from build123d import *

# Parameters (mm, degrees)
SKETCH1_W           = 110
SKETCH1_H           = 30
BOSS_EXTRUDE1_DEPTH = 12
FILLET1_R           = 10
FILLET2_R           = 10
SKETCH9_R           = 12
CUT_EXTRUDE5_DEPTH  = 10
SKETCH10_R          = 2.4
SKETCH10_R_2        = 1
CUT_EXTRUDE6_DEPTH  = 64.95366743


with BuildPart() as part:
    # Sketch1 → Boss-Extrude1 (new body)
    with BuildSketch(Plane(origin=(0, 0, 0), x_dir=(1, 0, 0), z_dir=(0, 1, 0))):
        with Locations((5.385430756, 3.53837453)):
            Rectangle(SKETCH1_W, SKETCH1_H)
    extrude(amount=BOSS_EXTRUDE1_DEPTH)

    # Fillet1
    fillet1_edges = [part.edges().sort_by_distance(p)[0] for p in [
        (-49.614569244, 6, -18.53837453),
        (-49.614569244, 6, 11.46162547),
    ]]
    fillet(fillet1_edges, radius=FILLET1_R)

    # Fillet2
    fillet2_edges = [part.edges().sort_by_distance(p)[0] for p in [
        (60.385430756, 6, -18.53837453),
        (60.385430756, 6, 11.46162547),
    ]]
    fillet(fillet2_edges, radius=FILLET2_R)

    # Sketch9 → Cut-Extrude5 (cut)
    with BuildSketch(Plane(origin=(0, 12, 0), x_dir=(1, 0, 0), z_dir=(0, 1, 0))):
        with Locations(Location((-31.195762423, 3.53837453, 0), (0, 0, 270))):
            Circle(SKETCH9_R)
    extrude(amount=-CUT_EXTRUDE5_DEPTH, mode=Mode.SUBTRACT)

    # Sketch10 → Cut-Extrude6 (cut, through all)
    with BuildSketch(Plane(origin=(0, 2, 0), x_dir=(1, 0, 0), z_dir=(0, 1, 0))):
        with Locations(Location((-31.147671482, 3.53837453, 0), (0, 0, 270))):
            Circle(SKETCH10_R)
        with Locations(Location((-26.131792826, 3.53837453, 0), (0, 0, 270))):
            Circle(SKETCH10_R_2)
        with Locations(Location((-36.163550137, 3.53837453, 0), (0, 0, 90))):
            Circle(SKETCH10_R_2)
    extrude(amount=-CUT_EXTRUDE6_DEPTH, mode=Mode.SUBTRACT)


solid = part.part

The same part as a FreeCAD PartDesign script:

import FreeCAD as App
import Part
import Sketcher
Q = App.Units.Quantity


def edges_at(feature, points):
    """Names of the edges that pass closest to the given points."""
    edges = feature.Shape.Edges
    near = lambda p: min(range(len(edges)), key=lambda i: edges[i].distToShape(Part.Vertex(*p))[0])
    return sorted({f"Edge{near(p) + 1}" for p in points})


def add_polygon(sketch, points):
    """Adds a closed chain of lines whose ends are joined by coincident constraints."""
    first, n = sketch.GeometryCount, len(points)
    for a, b in zip(points, points[1:] + points[:1]):
        sketch.addGeometry(Part.LineSegment(App.Vector(*a, 0), App.Vector(*b, 0)), False)
    for i in range(n):
        sketch.addConstraint(Sketcher.Constraint("Coincident", first + i, 2, first + (i + 1) % n, 1))

doc = App.newDocument("Part")
body = doc.addObject("PartDesign::Body", "Body")

sketch1 = body.newObject("Sketcher::SketchObject", "Sketch")
sketch1.AttachmentSupport = (doc.getObject("XZ_Plane"), [""])
sketch1.MapMode = "FlatFace"
add_polygon(sketch1, [(-50, -19), (-50, 11), (60, 11), (60, -19)])
sketch1.addConstraint([
    Sketcher.Constraint("Vertical", 0),
    Sketcher.Constraint("Horizontal", 1),
    Sketcher.Constraint("Vertical", 2),
    Sketcher.Constraint("Horizontal", 3),
    Sketcher.Constraint("DistanceX", 1, 1, 1, 2, Q("110 mm")),
    Sketcher.Constraint("DistanceY", 0, 1, 0, 2, Q("30 mm")),
    Sketcher.Constraint("DistanceX", 0, 2, -1, 1, Q("49.614569 mm")),
    Sketcher.Constraint("DistanceY", -1, 1, 0, 2, Q("11.461625 mm")),
])
pad1 = body.newObject("PartDesign::Pad", "Pad")
pad1.Profile = sketch1
pad1.Length = 12
pad1.Reversed = True
doc.recompute()

fillet = body.newObject("PartDesign::Fillet", "Fillet")
fillet.Base = (pad1, edges_at(pad1, [(-49.615, 6, -18.538), (-49.615, 6, 11.462)]))
fillet.Radius = 10
doc.recompute()

fillet2 = body.newObject("PartDesign::Fillet", "Fillet001")
fillet2.Base = (fillet, edges_at(fillet, [(60.385, 6, -18.538), (60.385, 6, 11.462)]))
fillet2.Radius = 10

sketch2 = body.newObject("Sketcher::SketchObject", "Sketch001")
sketch2.AttachmentSupport = (doc.getObject("XZ_Plane"), [""])
sketch2.MapMode = "FlatFace"
sketch2.AttachmentOffset = App.Placement(App.Vector(0, 0, -12), App.Rotation())
sketch2.addGeometry(Part.Circle(App.Vector(-31, -4, 0), App.Vector(0, 0, 1), 12), False)
sketch2.addConstraint([
    Sketcher.Constraint("Diameter", 0, Q("24 mm")),
    Sketcher.Constraint("DistanceX", 0, 3, -1, 1, Q("31.195762 mm")),
    Sketcher.Constraint("DistanceY", 0, 3, -1, 1, Q("3.538375 mm")),
])
pocket1 = body.newObject("PartDesign::Pocket", "Pocket")
pocket1.Profile = sketch2
pocket1.Length = 10
pocket1.Reversed = True

sketch3 = body.newObject("Sketcher::SketchObject", "Sketch002")
sketch3.AttachmentSupport = (doc.getObject("XZ_Plane"), [""])
sketch3.MapMode = "FlatFace"
sketch3.AttachmentOffset = App.Placement(App.Vector(0, 0, -2), App.Rotation())
sketch3.addGeometry([
    Part.Circle(App.Vector(-31.1, -3.5, 0), App.Vector(0, 0, 1), 2.4),
    Part.Circle(App.Vector(-26.1, -3.5, 0), App.Vector(0, 0, 1), 1),
    Part.Circle(App.Vector(-36.2, -3.5, 0), App.Vector(0, 0, 1), 1),
], False)
sketch3.addConstraint([
    Sketcher.Constraint("Equal", 1, 2),
    Sketcher.Constraint("Horizontal", 0, 3, 1, 3),
    Sketcher.Constraint("Horizontal", 1, 3, 2, 3),
    Sketcher.Constraint("Diameter", 1, Q("2 mm")),
    Sketcher.Constraint("Diameter", 0, Q("4.8 mm")),
    Sketcher.Constraint("DistanceX", 0, 3, -1, 1, Q("31.147671 mm")),
    Sketcher.Constraint("DistanceX", 2, 3, -1, 1, Q("36.16355 mm")),
    Sketcher.Constraint("DistanceX", 0, 3, 1, 3, Q("5.015879 mm")),
    Sketcher.Constraint("DistanceY", 0, 3, -1, 1, Q("3.538375 mm")),
])
pocket2 = body.newObject("PartDesign::Pocket", "Pocket001")
pocket2.Profile = sketch3
pocket2.Type = "ThroughAll"
pocket2.Reversed = True

doc.recompute()
